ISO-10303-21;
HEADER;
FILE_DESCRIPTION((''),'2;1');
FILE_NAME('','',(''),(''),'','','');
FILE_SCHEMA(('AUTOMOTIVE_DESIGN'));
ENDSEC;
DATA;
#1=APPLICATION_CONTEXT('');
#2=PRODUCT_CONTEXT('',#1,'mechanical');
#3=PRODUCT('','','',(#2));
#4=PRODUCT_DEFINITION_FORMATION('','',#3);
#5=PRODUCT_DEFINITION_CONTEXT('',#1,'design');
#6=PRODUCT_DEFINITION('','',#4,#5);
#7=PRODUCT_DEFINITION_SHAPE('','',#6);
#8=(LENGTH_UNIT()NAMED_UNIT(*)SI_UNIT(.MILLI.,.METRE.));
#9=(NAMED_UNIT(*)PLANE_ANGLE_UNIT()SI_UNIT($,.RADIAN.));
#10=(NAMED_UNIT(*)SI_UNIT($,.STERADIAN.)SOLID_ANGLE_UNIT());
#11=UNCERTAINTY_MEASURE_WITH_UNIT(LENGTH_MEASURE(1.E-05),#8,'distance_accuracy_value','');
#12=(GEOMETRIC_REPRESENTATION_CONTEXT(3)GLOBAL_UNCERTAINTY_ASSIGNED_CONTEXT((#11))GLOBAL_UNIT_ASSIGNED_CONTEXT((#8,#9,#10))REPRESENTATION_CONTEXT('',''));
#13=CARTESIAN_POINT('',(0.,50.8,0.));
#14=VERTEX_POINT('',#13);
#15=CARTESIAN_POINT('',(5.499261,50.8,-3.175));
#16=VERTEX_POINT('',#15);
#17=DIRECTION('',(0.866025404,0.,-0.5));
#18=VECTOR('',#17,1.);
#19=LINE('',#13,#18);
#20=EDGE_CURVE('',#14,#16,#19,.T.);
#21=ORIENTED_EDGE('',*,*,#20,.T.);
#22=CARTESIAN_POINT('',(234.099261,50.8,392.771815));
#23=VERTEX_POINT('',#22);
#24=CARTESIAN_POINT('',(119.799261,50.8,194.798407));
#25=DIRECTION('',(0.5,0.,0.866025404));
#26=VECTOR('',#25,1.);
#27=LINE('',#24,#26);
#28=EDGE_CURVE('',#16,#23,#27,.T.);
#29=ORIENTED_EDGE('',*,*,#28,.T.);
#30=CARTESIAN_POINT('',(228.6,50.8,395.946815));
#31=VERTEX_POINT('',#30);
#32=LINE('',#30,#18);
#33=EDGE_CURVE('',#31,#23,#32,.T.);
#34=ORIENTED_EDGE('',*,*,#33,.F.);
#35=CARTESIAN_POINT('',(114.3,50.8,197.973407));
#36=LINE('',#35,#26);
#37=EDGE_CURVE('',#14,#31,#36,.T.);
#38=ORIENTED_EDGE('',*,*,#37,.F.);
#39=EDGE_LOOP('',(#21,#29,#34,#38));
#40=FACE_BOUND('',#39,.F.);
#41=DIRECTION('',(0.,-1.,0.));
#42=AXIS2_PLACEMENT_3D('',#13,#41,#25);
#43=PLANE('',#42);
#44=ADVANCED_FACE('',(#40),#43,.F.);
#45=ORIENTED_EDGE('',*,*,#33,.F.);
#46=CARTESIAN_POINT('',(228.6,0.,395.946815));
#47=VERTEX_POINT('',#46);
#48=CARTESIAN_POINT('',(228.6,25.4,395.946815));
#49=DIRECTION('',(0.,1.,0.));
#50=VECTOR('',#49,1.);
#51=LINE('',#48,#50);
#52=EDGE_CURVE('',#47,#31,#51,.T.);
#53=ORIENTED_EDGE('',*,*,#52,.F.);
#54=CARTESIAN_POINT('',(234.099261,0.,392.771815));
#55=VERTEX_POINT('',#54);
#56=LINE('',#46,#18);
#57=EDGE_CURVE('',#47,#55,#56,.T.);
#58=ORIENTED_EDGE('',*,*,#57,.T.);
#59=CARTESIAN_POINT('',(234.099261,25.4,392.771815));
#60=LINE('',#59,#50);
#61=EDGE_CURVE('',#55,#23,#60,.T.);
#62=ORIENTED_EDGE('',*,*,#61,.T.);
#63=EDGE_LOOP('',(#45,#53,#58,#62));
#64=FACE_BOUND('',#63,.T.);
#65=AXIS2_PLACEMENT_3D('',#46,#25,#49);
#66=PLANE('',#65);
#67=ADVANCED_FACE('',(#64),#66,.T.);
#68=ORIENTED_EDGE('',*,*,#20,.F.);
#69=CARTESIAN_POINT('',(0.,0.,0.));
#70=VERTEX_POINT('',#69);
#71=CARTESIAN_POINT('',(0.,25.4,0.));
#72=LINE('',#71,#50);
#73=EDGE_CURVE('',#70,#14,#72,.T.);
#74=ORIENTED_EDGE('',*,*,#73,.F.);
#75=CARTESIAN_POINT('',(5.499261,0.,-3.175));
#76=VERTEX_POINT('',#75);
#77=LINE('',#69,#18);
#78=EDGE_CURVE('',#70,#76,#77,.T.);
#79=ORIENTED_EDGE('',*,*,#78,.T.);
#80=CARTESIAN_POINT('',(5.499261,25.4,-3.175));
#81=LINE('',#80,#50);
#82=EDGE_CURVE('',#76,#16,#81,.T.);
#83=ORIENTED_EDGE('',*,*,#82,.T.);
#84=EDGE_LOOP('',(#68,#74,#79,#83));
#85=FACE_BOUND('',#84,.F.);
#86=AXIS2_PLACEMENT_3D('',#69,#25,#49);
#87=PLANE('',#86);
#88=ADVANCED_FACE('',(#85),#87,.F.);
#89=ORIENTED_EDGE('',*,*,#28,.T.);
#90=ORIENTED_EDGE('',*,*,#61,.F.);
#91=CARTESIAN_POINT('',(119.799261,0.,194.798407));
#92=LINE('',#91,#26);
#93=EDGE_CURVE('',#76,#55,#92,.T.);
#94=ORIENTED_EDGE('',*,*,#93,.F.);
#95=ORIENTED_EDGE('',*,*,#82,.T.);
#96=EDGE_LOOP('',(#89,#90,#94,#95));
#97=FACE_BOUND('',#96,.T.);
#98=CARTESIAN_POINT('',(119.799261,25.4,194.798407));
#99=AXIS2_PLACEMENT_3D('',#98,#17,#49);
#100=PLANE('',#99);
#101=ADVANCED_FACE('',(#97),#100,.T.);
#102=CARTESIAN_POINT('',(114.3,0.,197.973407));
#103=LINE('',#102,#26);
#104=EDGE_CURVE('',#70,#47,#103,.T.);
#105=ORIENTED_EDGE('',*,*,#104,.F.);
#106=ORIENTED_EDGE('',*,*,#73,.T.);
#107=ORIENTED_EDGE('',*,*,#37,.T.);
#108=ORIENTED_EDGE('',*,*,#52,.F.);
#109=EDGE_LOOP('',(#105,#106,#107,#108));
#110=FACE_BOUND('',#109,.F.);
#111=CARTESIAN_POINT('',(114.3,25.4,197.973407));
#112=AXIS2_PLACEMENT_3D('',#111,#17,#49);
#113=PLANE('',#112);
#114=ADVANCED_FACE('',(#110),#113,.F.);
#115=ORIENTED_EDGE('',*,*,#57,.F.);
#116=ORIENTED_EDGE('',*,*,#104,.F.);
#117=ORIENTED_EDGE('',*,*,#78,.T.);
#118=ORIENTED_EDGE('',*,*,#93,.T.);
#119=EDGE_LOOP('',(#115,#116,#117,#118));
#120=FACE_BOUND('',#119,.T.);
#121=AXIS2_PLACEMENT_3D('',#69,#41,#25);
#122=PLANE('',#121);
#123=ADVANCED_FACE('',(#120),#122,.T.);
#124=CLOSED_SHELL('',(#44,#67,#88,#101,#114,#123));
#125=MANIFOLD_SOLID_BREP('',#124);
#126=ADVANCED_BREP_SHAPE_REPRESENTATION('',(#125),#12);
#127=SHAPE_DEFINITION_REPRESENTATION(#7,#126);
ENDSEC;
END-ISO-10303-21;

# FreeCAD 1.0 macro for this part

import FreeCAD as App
import Part
import Sketcher
from FreeCAD import Vector
Q = App.Units.Quantity

doc = App.newDocument("Part")
params = doc.addObject("Spreadsheet::Sheet", "Params")
for row, (alias, value) in enumerate([
    ("sketch1_width", "2 in"),
    ("sketch1_height", "18 in"),
    ("pad1_length", "0.25 in"),
], start=1):
    params.set(f"A{row}", alias)
    params.set(f"B{row}", "=" + value)
    params.setAlias(f"B{row}", alias)

body = doc.addObject("PartDesign::Body", "Body")

# Sketch on YZ plane
sketch1 = body.newObject("Sketcher::SketchObject", "Sketch")
sketch1.AttachmentSupport = (doc.getObject("YZ_Plane"), [""])
sketch1.MapMode = "FlatFace"
sketch1.addGeometry([
    Part.LineSegment(Vector(0, 457.2, 0), Vector(0, 0, 0)),
    Part.LineSegment(Vector(0, 0, 0), Vector(50.8, 0, 0)),
    Part.LineSegment(Vector(50.8, 0, 0), Vector(50.8, 457.2, 0)),
    Part.LineSegment(Vector(50.8, 457.2, 0), Vector(0, 457.2, 0)),
], False)
sketch1.addConstraint([
    Sketcher.Constraint("Coincident", 0, 2, 1, 1),
    Sketcher.Constraint("Coincident", 1, 2, 2, 1),
    Sketcher.Constraint("Coincident", 2, 2, 3, 1),
    Sketcher.Constraint("Coincident", 3, 2, 0, 1),
    Sketcher.Constraint("Vertical", 0),
    Sketcher.Constraint("Horizontal", 1),
    Sketcher.Constraint("Vertical", 2),
    Sketcher.Constraint("Horizontal", 3),
    Sketcher.Constraint("Coincident", 0, 2, -1, 1),
    Sketcher.Constraint("DistanceX", 1, 1, 1, 2, Q("2 in")),
    Sketcher.Constraint("DistanceY", 0, 2, 0, 1, Q("18 in")),
])
sketch1.setExpression("Constraints[9]", "Params.sketch1_width")
sketch1.setExpression("Constraints[10]", "Params.sketch1_height")
pad1 = body.newObject("PartDesign::Pad", "Pad")
pad1.Profile = sketch1
pad1.setExpression("Length", "Params.pad1_length")
body2 = doc.addObject("PartDesign::Body", "Body001")
doc.recompute()

body.Placement = App.Placement(Vector(0, 0, 0), App.Rotation(Vector(0, 1, 0), 30))
boolean = body2.newObject("PartDesign::Boolean", "Boolean")
boolean.Type = "Fuse"
boolean.addObjects([body])

doc.recompute()
